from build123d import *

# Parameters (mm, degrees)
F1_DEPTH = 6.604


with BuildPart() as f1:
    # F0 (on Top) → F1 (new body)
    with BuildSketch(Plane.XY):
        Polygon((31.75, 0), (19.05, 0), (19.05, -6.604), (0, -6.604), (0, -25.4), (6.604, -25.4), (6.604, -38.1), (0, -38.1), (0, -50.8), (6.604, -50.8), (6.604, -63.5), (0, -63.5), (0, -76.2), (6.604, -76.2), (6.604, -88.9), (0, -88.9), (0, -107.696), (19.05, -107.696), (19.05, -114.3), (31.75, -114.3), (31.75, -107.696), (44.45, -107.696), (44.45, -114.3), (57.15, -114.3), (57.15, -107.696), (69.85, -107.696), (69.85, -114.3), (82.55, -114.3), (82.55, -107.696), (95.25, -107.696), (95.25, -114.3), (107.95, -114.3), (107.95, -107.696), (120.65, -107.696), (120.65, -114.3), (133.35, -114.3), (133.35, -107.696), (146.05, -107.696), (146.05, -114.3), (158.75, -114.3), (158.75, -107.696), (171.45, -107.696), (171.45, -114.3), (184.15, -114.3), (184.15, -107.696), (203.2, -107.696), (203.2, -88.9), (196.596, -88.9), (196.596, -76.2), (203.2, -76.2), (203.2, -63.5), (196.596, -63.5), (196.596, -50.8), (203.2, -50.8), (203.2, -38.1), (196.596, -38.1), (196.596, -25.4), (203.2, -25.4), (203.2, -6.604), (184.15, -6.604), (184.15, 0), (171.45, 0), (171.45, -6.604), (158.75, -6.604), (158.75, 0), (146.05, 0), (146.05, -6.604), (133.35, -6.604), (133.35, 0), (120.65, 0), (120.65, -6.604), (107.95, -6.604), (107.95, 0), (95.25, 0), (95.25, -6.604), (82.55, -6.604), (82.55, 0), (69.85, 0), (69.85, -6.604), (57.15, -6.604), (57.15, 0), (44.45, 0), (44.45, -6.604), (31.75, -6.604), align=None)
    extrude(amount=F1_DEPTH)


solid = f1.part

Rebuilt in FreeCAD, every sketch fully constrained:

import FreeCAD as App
import Part
import Sketcher
from FreeCAD import Vector
Q = App.Units.Quantity

doc = App.newDocument("Part")
body = doc.addObject("PartDesign::Body", "Body")

# Sketch on XY plane
sketch1 = body.newObject("Sketcher::SketchObject", "Sketch")
sketch1.AttachmentSupport = (doc.getObject("XY_Plane"), [""])
sketch1.MapMode = "FlatFace"
sketch1.addGeometry([
    Part.LineSegment(Vector(32, 0, 0), Vector(19, 0, 0)),  # 0
    Part.LineSegment(Vector(19, 0, 0), Vector(19, -7, 0)),  # 1
    Part.LineSegment(Vector(19, -7, 0), Vector(0, -7, 0)),  # 2
    Part.LineSegment(Vector(0, -7, 0), Vector(0, -25, 0)),  # 3
    Part.LineSegment(Vector(0, -25, 0), Vector(7, -25, 0)),  # 4
    Part.LineSegment(Vector(7, -25, 0), Vector(7, -38, 0)),  # 5
    Part.LineSegment(Vector(7, -38, 0), Vector(0, -38, 0)),  # 6
    Part.LineSegment(Vector(0, -38, 0), Vector(0, -51, 0)),  # 7
    Part.LineSegment(Vector(0, -51, 0), Vector(7, -51, 0)),  # 8
    Part.LineSegment(Vector(7, -51, 0), Vector(7, -64, 0)),  # 9
    Part.LineSegment(Vector(7, -64, 0), Vector(0, -64, 0)),  # 10
    Part.LineSegment(Vector(0, -64, 0), Vector(0, -76, 0)),  # 11
    Part.LineSegment(Vector(0, -76, 0), Vector(7, -76, 0)),  # 12
    Part.LineSegment(Vector(7, -76, 0), Vector(7, -89, 0)),  # 13
    Part.LineSegment(Vector(7, -89, 0), Vector(0, -89, 0)),  # 14
    Part.LineSegment(Vector(0, -89, 0), Vector(0, -108, 0)),  # 15
    Part.LineSegment(Vector(0, -108, 0), Vector(19, -108, 0)),  # 16
    Part.LineSegment(Vector(19, -108, 0), Vector(19, -114, 0)),  # 17
    Part.LineSegment(Vector(19, -114, 0), Vector(32, -114, 0)),  # 18
    Part.LineSegment(Vector(32, -114, 0), Vector(32, -108, 0)),  # 19
    Part.LineSegment(Vector(32, -108, 0), Vector(44, -108, 0)),  # 20
    Part.LineSegment(Vector(44, -108, 0), Vector(44, -114, 0)),  # 21
    Part.LineSegment(Vector(44, -114, 0), Vector(57, -114, 0)),  # 22
    Part.LineSegment(Vector(57, -114, 0), Vector(57, -108, 0)),  # 23
    Part.LineSegment(Vector(57, -108, 0), Vector(70, -108, 0)),  # 24
    Part.LineSegment(Vector(70, -108, 0), Vector(70, -114, 0)),  # 25
    Part.LineSegment(Vector(70, -114, 0), Vector(83, -114, 0)),  # 26
    Part.LineSegment(Vector(83, -114, 0), Vector(83, -108, 0)),  # 27
    Part.LineSegment(Vector(83, -108, 0), Vector(95, -108, 0)),  # 28
    Part.LineSegment(Vector(95, -108, 0), Vector(95, -114, 0)),  # 29
    Part.LineSegment(Vector(95, -114, 0), Vector(108, -114, 0)),  # 30
    Part.LineSegment(Vector(108, -114, 0), Vector(108, -108, 0)),  # 31
    Part.LineSegment(Vector(108, -108, 0), Vector(121, -108, 0)),  # 32
    Part.LineSegment(Vector(121, -108, 0), Vector(121, -114, 0)),  # 33
    Part.LineSegment(Vector(121, -114, 0), Vector(133, -114, 0)),  # 34
    Part.LineSegment(Vector(133, -114, 0), Vector(133, -108, 0)),  # 35
    Part.LineSegment(Vector(133, -108, 0), Vector(146, -108, 0)),  # 36
    Part.LineSegment(Vector(146, -108, 0), Vector(146, -114, 0)),  # 37
    Part.LineSegment(Vector(146, -114, 0), Vector(159, -114, 0)),  # 38
    Part.LineSegment(Vector(159, -114, 0), Vector(159, -108, 0)),  # 39
    Part.LineSegment(Vector(159, -108, 0), Vector(171, -108, 0)),  # 40
    Part.LineSegment(Vector(171, -108, 0), Vector(171, -114, 0)),  # 41
    Part.LineSegment(Vector(171, -114, 0), Vector(184, -114, 0)),  # 42
    Part.LineSegment(Vector(184, -114, 0), Vector(184, -108, 0)),  # 43
    Part.LineSegment(Vector(184, -108, 0), Vector(203, -108, 0)),  # 44
    Part.LineSegment(Vector(203, -108, 0), Vector(203, -89, 0)),  # 45
    Part.LineSegment(Vector(203, -89, 0), Vector(197, -89, 0)),  # 46
    Part.LineSegment(Vector(197, -89, 0), Vector(197, -76, 0)),  # 47
    Part.LineSegment(Vector(197, -76, 0), Vector(203, -76, 0)),  # 48
    Part.LineSegment(Vector(203, -76, 0), Vector(203, -64, 0)),  # 49
    Part.LineSegment(Vector(203, -64, 0), Vector(197, -64, 0)),  # 50
    Part.LineSegment(Vector(197, -64, 0), Vector(197, -51, 0)),  # 51
    Part.LineSegment(Vector(197, -51, 0), Vector(203, -51, 0)),  # 52
    Part.LineSegment(Vector(203, -51, 0), Vector(203, -38, 0)),  # 53
    Part.LineSegment(Vector(203, -38, 0), Vector(197, -38, 0)),  # 54
    Part.LineSegment(Vector(197, -38, 0), Vector(197, -25, 0)),  # 55
    Part.LineSegment(Vector(197, -25, 0), Vector(203, -25, 0)),  # 56
    Part.LineSegment(Vector(203, -25, 0), Vector(203, -7, 0)),  # 57
    Part.LineSegment(Vector(203, -7, 0), Vector(184, -7, 0)),  # 58
    Part.LineSegment(Vector(184, -7, 0), Vector(184, 0, 0)),  # 59
    Part.LineSegment(Vector(184, 0, 0), Vector(171, 0, 0)),  # 60
    Part.LineSegment(Vector(171, 0, 0), Vector(171, -7, 0)),  # 61
    Part.LineSegment(Vector(171, -7, 0), Vector(159, -7, 0)),  # 62
    Part.LineSegment(Vector(159, -7, 0), Vector(159, 0, 0)),  # 63
    Part.LineSegment(Vector(159, 0, 0), Vector(146, 0, 0)),  # 64
    Part.LineSegment(Vector(146, 0, 0), Vector(146, -7, 0)),  # 65
    Part.LineSegment(Vector(146, -7, 0), Vector(133, -7, 0)),  # 66
    Part.LineSegment(Vector(133, -7, 0), Vector(133, 0, 0)),  # 67
    Part.LineSegment(Vector(133, 0, 0), Vector(121, 0, 0)),  # 68
    Part.LineSegment(Vector(121, 0, 0), Vector(121, -7, 0)),  # 69
    Part.LineSegment(Vector(121, -7, 0), Vector(108, -7, 0)),  # 70
    Part.LineSegment(Vector(108, -7, 0), Vector(108, 0, 0)),  # 71
    Part.LineSegment(Vector(108, 0, 0), Vector(95, 0, 0)),  # 72
    Part.LineSegment(Vector(95, 0, 0), Vector(95, -7, 0)),  # 73
    Part.LineSegment(Vector(95, -7, 0), Vector(83, -7, 0)),  # 74
    Part.LineSegment(Vector(83, -7, 0), Vector(83, 0, 0)),  # 75
    Part.LineSegment(Vector(83, 0, 0), Vector(70, 0, 0)),  # 76
    Part.LineSegment(Vector(70, 0, 0), Vector(70, -7, 0)),  # 77
    Part.LineSegment(Vector(70, -7, 0), Vector(57, -7, 0)),  # 78
    Part.LineSegment(Vector(57, -7, 0), Vector(57, 0, 0)),  # 79
    Part.LineSegment(Vector(57, 0, 0), Vector(44, 0, 0)),  # 80
    Part.LineSegment(Vector(44, 0, 0), Vector(44, -7, 0)),  # 81
    Part.LineSegment(Vector(44, -7, 0), Vector(32, -7, 0)),  # 82
    Part.LineSegment(Vector(32, -7, 0), Vector(32, 0, 0)),  # 83
], False)
sketch1.addConstraint([
    Sketcher.Constraint("Coincident", 0, 2, 1, 1),
    Sketcher.Constraint("Coincident", 1, 2, 2, 1),
    Sketcher.Constraint("Coincident", 2, 2, 3, 1),
    Sketcher.Constraint("Coincident", 3, 2, 4, 1),
    Sketcher.Constraint("Coincident", 4, 2, 5, 1),
    Sketcher.Constraint("Coincident", 5, 2, 6, 1),
    Sketcher.Constraint("Coincident", 6, 2, 7, 1),
    Sketcher.Constraint("Coincident", 7, 2, 8, 1),
    Sketcher.Constraint("Coincident", 8, 2, 9, 1),
    Sketcher.Constraint("Coincident", 9, 2, 10, 1),
    Sketcher.Constraint("Coincident", 10, 2, 11, 1),
    Sketcher.Constraint("Coincident", 11, 2, 12, 1),
    Sketcher.Constraint("Coincident", 12, 2, 13, 1),
    Sketcher.Constraint("Coincident", 13, 2, 14, 1),
    Sketcher.Constraint("Coincident", 14, 2, 15, 1),
    Sketcher.Constraint("Coincident", 15, 2, 16, 1),
    Sketcher.Constraint("Coincident", 16, 2, 17, 1),
    Sketcher.Constraint("Coincident", 17, 2, 18, 1),
    Sketcher.Constraint("Coincident", 18, 2, 19, 1),
    Sketcher.Constraint("Coincident", 19, 2, 20, 1),
    Sketcher.Constraint("Coincident", 20, 2, 21, 1),
    Sketcher.Constraint("Coincident", 21, 2, 22, 1),
    Sketcher.Constraint("Coincident", 22, 2, 23, 1),
    Sketcher.Constraint("Coincident", 23, 2, 24, 1),
    Sketcher.Constraint("Coincident", 24, 2, 25, 1),
    Sketcher.Constraint("Coincident", 25, 2, 26, 1),
    Sketcher.Constraint("Coincident", 26, 2, 27, 1),
    Sketcher.Constraint("Coincident", 27, 2, 28, 1),
    Sketcher.Constraint("Coincident", 28, 2, 29, 1),
    Sketcher.Constraint("Coincident", 29, 2, 30, 1),
    Sketcher.Constraint("Coincident", 30, 2, 31, 1),
    Sketcher.Constraint("Coincident", 31, 2, 32, 1),
    Sketcher.Constraint("Coincident", 32, 2, 33, 1),
    Sketcher.Constraint("Coincident", 33, 2, 34, 1),
    Sketcher.Constraint("Coincident", 34, 2, 35, 1),
    Sketcher.Constraint("Coincident", 35, 2, 36, 1),
    Sketcher.Constraint("Coincident", 36, 2, 37, 1),
    Sketcher.Constraint("Coincident", 37, 2, 38, 1),
    Sketcher.Constraint("Coincident", 38, 2, 39, 1),
    Sketcher.Constraint("Coincident", 39, 2, 40, 1),
    Sketcher.Constraint("Coincident", 40, 2, 41, 1),
    Sketcher.Constraint("Coincident", 41, 2, 42, 1),
    Sketcher.Constraint("Coincident", 42, 2, 43, 1),
    Sketcher.Constraint("Coincident", 43, 2, 44, 1),
    Sketcher.Constraint("Coincident", 44, 2, 45, 1),
    Sketcher.Constraint("Coincident", 45, 2, 46, 1),
    Sketcher.Constraint("Coincident", 46, 2, 47, 1),
    Sketcher.Constraint("Coincident", 47, 2, 48, 1),
    Sketcher.Constraint("Coincident", 48, 2, 49, 1),
    Sketcher.Constraint("Coincident", 49, 2, 50, 1),
    Sketcher.Constraint("Coincident", 50, 2, 51, 1),
    Sketcher.Constraint("Coincident", 51, 2, 52, 1),
    Sketcher.Constraint("Coincident", 52, 2, 53, 1),
    Sketcher.Constraint("Coincident", 53, 2, 54, 1),
    Sketcher.Constraint("Coincident", 54, 2, 55, 1),
    Sketcher.Constraint("Coincident", 55, 2, 56, 1),
    Sketcher.Constraint("Coincident", 56, 2, 57, 1),
    Sketcher.Constraint("Coincident", 57, 2, 58, 1),
    Sketcher.Constraint("Coincident", 58, 2, 59, 1),
    Sketcher.Constraint("Coincident", 59, 2, 60, 1),
    Sketcher.Constraint("Coincident", 60, 2, 61, 1),
    Sketcher.Constraint("Coincident", 61, 2, 62, 1),
    Sketcher.Constraint("Coincident", 62, 2, 63, 1),
    Sketcher.Constraint("Coincident", 63, 2, 64, 1),
    Sketcher.Constraint("Coincident", 64, 2, 65, 1),
    Sketcher.Constraint("Coincident", 65, 2, 66, 1),
    Sketcher.Constraint("Coincident", 66, 2, 67, 1),
    Sketcher.Constraint("Coincident", 67, 2, 68, 1),
    Sketcher.Constraint("Coincident", 68, 2, 69, 1),
    Sketcher.Constraint("Coincident", 69, 2, 70, 1),
    Sketcher.Constraint("Coincident", 70, 2, 71, 1),
    Sketcher.Constraint("Coincident", 71, 2, 72, 1),
    Sketcher.Constraint("Coincident", 72, 2, 73, 1),
    Sketcher.Constraint("Coincident", 73, 2, 74, 1),
    Sketcher.Constraint("Coincident", 74, 2, 75, 1),
    Sketcher.Constraint("Coincident", 75, 2, 76, 1),
    Sketcher.Constraint("Coincident", 76, 2, 77, 1),
    Sketcher.Constraint("Coincident", 77, 2, 78, 1),
    Sketcher.Constraint("Coincident", 78, 2, 79, 1),
    Sketcher.Constraint("Coincident", 79, 2, 80, 1),
    Sketcher.Constraint("Coincident", 80, 2, 81, 1),
    Sketcher.Constraint("Coincident", 81, 2, 82, 1),
    Sketcher.Constraint("Coincident", 82, 2, 83, 1),
    Sketcher.Constraint("Coincident", 83, 2, 0, 1),
    Sketcher.Constraint("Horizontal", 0),
    Sketcher.Constraint("Vertical", 1),
    Sketcher.Constraint("Horizontal", 2),
    Sketcher.Constraint("Vertical", 3),
    Sketcher.Constraint("Horizontal", 4),
    Sketcher.Constraint("Vertical", 5),
    Sketcher.Constraint("Horizontal", 6),
    Sketcher.Constraint("Vertical", 7),
    Sketcher.Constraint("Horizontal", 8),
    Sketcher.Constraint("Vertical", 9),
    Sketcher.Constraint("Horizontal", 10),
    Sketcher.Constraint("Vertical", 11),
    Sketcher.Constraint("Horizontal", 12),
    Sketcher.Constraint("Vertical", 13),
    Sketcher.Constraint("Horizontal", 14),
    Sketcher.Constraint("Vertical", 15),
    Sketcher.Constraint("Horizontal", 16),
    Sketcher.Constraint("Vertical", 17),
    Sketcher.Constraint("Horizontal", 18),
    Sketcher.Constraint("Vertical", 19),
    Sketcher.Constraint("Horizontal", 20),
    Sketcher.Constraint("Vertical", 21),
    Sketcher.Constraint("Horizontal", 22),
    Sketcher.Constraint("Vertical", 23),
    Sketcher.Constraint("Horizontal", 24),
    Sketcher.Constraint("Vertical", 25),
    Sketcher.Constraint("Horizontal", 26),
    Sketcher.Constraint("Vertical", 27),
    Sketcher.Constraint("Horizontal", 28),
    Sketcher.Constraint("Vertical", 29),
    Sketcher.Constraint("Horizontal", 30),
    Sketcher.Constraint("Vertical", 31),
    Sketcher.Constraint("Horizontal", 32),
    Sketcher.Constraint("Vertical", 33),
    Sketcher.Constraint("Horizontal", 34),
    Sketcher.Constraint("Vertical", 35),
    Sketcher.Constraint("Horizontal", 36),
    Sketcher.Constraint("Vertical", 37),
    Sketcher.Constraint("Horizontal", 38),
    Sketcher.Constraint("Vertical", 39),
    Sketcher.Constraint("Horizontal", 40),
    Sketcher.Constraint("Vertical", 41),
    Sketcher.Constraint("Horizontal", 42),
    Sketcher.Constraint("Vertical", 43),
    Sketcher.Constraint("Horizontal", 44),
    Sketcher.Constraint("Vertical", 45),
    Sketcher.Constraint("Horizontal", 46),
    Sketcher.Constraint("Vertical", 47),
    Sketcher.Constraint("Horizontal", 48),
    Sketcher.Constraint("Vertical", 49),
    Sketcher.Constraint("Horizontal", 50),
    Sketcher.Constraint("Vertical", 51),
    Sketcher.Constraint("Horizontal", 52),
    Sketcher.Constraint("Vertical", 53),
    Sketcher.Constraint("Horizontal", 54),
    Sketcher.Constraint("Vertical", 55),
    Sketcher.Constraint("Horizontal", 56),
    Sketcher.Constraint("Vertical", 57),
    Sketcher.Constraint("Horizontal", 58),
    Sketcher.Constraint("Vertical", 59),
    Sketcher.Constraint("Horizontal", 60),
    Sketcher.Constraint("Vertical", 61),
    Sketcher.Constraint("Horizontal", 62),
    Sketcher.Constraint("Vertical", 63),
    Sketcher.Constraint("Horizontal", 64),
    Sketcher.Constraint("Vertical", 65),
    Sketcher.Constraint("Horizontal", 66),
    Sketcher.Constraint("Vertical", 67),
    Sketcher.Constraint("Horizontal", 68),
    Sketcher.Constraint("Vertical", 69),
    Sketcher.Constraint("Horizontal", 70),
    Sketcher.Constraint("Vertical", 71),
    Sketcher.Constraint("Horizontal", 72),
    Sketcher.Constraint("Vertical", 73),
    Sketcher.Constraint("Horizontal", 74),
    Sketcher.Constraint("Vertical", 75),
    Sketcher.Constraint("Horizontal", 76),
    Sketcher.Constraint("Vertical", 77),
    Sketcher.Constraint("Horizontal", 78),
    Sketcher.Constraint("Vertical", 79),
    Sketcher.Constraint("Horizontal", 80),
    Sketcher.Constraint("Vertical", 81),
    Sketcher.Constraint("Horizontal", 82),
    Sketcher.Constraint("Vertical", 83),
    Sketcher.Constraint("PointOnObject", 0, 2, -1),
    Sketcher.Constraint("PointOnObject", 2, 2, -2),
    Sketcher.Constraint("PointOnObject", 6, 2, -2),
    Sketcher.Constraint("PointOnObject", 10, 2, -2),
    Sketcher.Constraint("PointOnObject", 14, 2, -2),
    Sketcher.Constraint("PointOnObject", 59, 2, -1),
    Sketcher.Constraint("PointOnObject", 63, 2, -1),
    Sketcher.Constraint("PointOnObject", 67, 2, -1),
    Sketcher.Constraint("PointOnObject", 71, 2, -1),
    Sketcher.Constraint("PointOnObject", 75, 2, -1),
    Sketcher.Constraint("PointOnObject", 79, 2, -1),
    Sketcher.Constraint("Horizontal", 16, 2, 19, 2),
    Sketcher.Constraint("Horizontal", 18, 2, 21, 2),
    Sketcher.Constraint("Horizontal", 20, 2, 23, 2),
    Sketcher.Constraint("Horizontal", 22, 2, 25, 2),
    Sketcher.Constraint("Horizontal", 24, 2, 27, 2),
    Sketcher.Constraint("Horizontal", 26, 2, 29, 2),
    Sketcher.Constraint("Horizontal", 28, 2, 31, 2),
    Sketcher.Constraint("Horizontal", 30, 2, 33, 2),
    Sketcher.Constraint("Horizontal", 32, 2, 35, 2),
    Sketcher.Constraint("Horizontal", 34, 2, 37, 2),
    Sketcher.Constraint("Horizontal", 36, 2, 39, 2),
    Sketcher.Constraint("Horizontal", 38, 2, 41, 2),
    Sketcher.Constraint("Horizontal", 40, 2, 43, 2),
    Sketcher.Constraint("Horizontal", 14, 2, 45, 2),
    Sketcher.Constraint("Horizontal", 12, 2, 47, 2),
    Sketcher.Constraint("Horizontal", 10, 2, 49, 2),
    Sketcher.Constraint("Horizontal", 8, 2, 51, 2),
    Sketcher.Constraint("Horizontal", 6, 2, 53, 2),
    Sketcher.Constraint("Horizontal", 4, 2, 55, 2),
    Sketcher.Constraint("Horizontal", 2, 2, 57, 2),
    Sketcher.Constraint("Horizontal", 58, 2, 61, 2),
    Sketcher.Constraint("Horizontal", 62, 2, 65, 2),
    Sketcher.Constraint("Horizontal", 66, 2, 69, 2),
    Sketcher.Constraint("Horizontal", 70, 2, 73, 2),
    Sketcher.Constraint("Horizontal", 74, 2, 77, 2),
    Sketcher.Constraint("Horizontal", 78, 2, 81, 2),
    Sketcher.Constraint("Vertical", 5, 2, 8, 2),
    Sketcher.Constraint("Vertical", 9, 2, 12, 2),
    Sketcher.Constraint("Vertical", 1, 2, 16, 2),
    Sketcher.Constraint("Vertical", 45, 2, 48, 2),
    Sketcher.Constraint("Vertical", 47, 2, 50, 2),
    Sketcher.Constraint("Vertical", 49, 2, 52, 2),
    Sketcher.Constraint("Vertical", 51, 2, 54, 2),
    Sketcher.Constraint("Vertical", 53, 2, 56, 2),
    Sketcher.Constraint("Vertical", 43, 2, 58, 2),
    Sketcher.Constraint("Vertical", 41, 2, 60, 2),
    Sketcher.Constraint("Vertical", 39, 2, 62, 2),
    Sketcher.Constraint("Vertical", 37, 2, 64, 2),
    Sketcher.Constraint("Vertical", 35, 2, 66, 2),
    Sketcher.Constraint("Vertical", 33, 2, 68, 2),
    Sketcher.Constraint("Vertical", 31, 2, 70, 2),
    Sketcher.Constraint("Vertical", 29, 2, 72, 2),
    Sketcher.Constraint("Vertical", 27, 2, 74, 2),
    Sketcher.Constraint("Vertical", 25, 2, 76, 2),
    Sketcher.Constraint("Vertical", 23, 2, 78, 2),
    Sketcher.Constraint("Vertical", 21, 2, 80, 2),
    Sketcher.Constraint("Vertical", 19, 2, 82, 2),
    Sketcher.Constraint("Equal", 18, 20),
    Sketcher.Constraint("Equal", 20, 22),
    Sketcher.Constraint("Equal", 22, 24),
    Sketcher.Constraint("Equal", 24, 26),
    Sketcher.Constraint("Equal", 26, 28),
    Sketcher.Constraint("Equal", 28, 30),
    Sketcher.Constraint("Equal", 30, 32),
    Sketcher.Constraint("Equal", 32, 34),
    Sketcher.Constraint("Equal", 34, 36),
    Sketcher.Constraint("Equal", 36, 38),
    Sketcher.Constraint("Equal", 38, 40),
    Sketcher.Constraint("Equal", 40, 42),
    Sketcher.Constraint("Equal", 16, 44),
    Sketcher.Constraint("Equal", 14, 46),
    Sketcher.Constraint("Equal", 56, 1),
    Sketcher.Constraint("Equal", 82, 5),
    Sketcher.Constraint("Equal", 5, 7),
    Sketcher.Constraint("Equal", 7, 9),
    Sketcher.Constraint("Equal", 9, 11),
    Sketcher.Constraint("Equal", 11, 13),
    Sketcher.Constraint("Equal", 3, 15),
    Sketcher.Constraint("Equal", 1, 17),
    Sketcher.Constraint("DistanceX", 0, 2, 0, 1, Q("0.5 in")),
    Sketcher.Constraint("DistanceY", 3, 2, -1, 1, Q("1 in")),
    Sketcher.Constraint("DistanceX", -1, 1, 44, 2, Q("8 in")),
    Sketcher.Constraint("DistanceX", 4, 1, 4, 2, Q("0.26 in")),
])
pad1 = body.newObject("PartDesign::Pad", "Pad")
pad1.Profile = sketch1
pad1.Length = Q("0.26 in")

doc.recompute()
